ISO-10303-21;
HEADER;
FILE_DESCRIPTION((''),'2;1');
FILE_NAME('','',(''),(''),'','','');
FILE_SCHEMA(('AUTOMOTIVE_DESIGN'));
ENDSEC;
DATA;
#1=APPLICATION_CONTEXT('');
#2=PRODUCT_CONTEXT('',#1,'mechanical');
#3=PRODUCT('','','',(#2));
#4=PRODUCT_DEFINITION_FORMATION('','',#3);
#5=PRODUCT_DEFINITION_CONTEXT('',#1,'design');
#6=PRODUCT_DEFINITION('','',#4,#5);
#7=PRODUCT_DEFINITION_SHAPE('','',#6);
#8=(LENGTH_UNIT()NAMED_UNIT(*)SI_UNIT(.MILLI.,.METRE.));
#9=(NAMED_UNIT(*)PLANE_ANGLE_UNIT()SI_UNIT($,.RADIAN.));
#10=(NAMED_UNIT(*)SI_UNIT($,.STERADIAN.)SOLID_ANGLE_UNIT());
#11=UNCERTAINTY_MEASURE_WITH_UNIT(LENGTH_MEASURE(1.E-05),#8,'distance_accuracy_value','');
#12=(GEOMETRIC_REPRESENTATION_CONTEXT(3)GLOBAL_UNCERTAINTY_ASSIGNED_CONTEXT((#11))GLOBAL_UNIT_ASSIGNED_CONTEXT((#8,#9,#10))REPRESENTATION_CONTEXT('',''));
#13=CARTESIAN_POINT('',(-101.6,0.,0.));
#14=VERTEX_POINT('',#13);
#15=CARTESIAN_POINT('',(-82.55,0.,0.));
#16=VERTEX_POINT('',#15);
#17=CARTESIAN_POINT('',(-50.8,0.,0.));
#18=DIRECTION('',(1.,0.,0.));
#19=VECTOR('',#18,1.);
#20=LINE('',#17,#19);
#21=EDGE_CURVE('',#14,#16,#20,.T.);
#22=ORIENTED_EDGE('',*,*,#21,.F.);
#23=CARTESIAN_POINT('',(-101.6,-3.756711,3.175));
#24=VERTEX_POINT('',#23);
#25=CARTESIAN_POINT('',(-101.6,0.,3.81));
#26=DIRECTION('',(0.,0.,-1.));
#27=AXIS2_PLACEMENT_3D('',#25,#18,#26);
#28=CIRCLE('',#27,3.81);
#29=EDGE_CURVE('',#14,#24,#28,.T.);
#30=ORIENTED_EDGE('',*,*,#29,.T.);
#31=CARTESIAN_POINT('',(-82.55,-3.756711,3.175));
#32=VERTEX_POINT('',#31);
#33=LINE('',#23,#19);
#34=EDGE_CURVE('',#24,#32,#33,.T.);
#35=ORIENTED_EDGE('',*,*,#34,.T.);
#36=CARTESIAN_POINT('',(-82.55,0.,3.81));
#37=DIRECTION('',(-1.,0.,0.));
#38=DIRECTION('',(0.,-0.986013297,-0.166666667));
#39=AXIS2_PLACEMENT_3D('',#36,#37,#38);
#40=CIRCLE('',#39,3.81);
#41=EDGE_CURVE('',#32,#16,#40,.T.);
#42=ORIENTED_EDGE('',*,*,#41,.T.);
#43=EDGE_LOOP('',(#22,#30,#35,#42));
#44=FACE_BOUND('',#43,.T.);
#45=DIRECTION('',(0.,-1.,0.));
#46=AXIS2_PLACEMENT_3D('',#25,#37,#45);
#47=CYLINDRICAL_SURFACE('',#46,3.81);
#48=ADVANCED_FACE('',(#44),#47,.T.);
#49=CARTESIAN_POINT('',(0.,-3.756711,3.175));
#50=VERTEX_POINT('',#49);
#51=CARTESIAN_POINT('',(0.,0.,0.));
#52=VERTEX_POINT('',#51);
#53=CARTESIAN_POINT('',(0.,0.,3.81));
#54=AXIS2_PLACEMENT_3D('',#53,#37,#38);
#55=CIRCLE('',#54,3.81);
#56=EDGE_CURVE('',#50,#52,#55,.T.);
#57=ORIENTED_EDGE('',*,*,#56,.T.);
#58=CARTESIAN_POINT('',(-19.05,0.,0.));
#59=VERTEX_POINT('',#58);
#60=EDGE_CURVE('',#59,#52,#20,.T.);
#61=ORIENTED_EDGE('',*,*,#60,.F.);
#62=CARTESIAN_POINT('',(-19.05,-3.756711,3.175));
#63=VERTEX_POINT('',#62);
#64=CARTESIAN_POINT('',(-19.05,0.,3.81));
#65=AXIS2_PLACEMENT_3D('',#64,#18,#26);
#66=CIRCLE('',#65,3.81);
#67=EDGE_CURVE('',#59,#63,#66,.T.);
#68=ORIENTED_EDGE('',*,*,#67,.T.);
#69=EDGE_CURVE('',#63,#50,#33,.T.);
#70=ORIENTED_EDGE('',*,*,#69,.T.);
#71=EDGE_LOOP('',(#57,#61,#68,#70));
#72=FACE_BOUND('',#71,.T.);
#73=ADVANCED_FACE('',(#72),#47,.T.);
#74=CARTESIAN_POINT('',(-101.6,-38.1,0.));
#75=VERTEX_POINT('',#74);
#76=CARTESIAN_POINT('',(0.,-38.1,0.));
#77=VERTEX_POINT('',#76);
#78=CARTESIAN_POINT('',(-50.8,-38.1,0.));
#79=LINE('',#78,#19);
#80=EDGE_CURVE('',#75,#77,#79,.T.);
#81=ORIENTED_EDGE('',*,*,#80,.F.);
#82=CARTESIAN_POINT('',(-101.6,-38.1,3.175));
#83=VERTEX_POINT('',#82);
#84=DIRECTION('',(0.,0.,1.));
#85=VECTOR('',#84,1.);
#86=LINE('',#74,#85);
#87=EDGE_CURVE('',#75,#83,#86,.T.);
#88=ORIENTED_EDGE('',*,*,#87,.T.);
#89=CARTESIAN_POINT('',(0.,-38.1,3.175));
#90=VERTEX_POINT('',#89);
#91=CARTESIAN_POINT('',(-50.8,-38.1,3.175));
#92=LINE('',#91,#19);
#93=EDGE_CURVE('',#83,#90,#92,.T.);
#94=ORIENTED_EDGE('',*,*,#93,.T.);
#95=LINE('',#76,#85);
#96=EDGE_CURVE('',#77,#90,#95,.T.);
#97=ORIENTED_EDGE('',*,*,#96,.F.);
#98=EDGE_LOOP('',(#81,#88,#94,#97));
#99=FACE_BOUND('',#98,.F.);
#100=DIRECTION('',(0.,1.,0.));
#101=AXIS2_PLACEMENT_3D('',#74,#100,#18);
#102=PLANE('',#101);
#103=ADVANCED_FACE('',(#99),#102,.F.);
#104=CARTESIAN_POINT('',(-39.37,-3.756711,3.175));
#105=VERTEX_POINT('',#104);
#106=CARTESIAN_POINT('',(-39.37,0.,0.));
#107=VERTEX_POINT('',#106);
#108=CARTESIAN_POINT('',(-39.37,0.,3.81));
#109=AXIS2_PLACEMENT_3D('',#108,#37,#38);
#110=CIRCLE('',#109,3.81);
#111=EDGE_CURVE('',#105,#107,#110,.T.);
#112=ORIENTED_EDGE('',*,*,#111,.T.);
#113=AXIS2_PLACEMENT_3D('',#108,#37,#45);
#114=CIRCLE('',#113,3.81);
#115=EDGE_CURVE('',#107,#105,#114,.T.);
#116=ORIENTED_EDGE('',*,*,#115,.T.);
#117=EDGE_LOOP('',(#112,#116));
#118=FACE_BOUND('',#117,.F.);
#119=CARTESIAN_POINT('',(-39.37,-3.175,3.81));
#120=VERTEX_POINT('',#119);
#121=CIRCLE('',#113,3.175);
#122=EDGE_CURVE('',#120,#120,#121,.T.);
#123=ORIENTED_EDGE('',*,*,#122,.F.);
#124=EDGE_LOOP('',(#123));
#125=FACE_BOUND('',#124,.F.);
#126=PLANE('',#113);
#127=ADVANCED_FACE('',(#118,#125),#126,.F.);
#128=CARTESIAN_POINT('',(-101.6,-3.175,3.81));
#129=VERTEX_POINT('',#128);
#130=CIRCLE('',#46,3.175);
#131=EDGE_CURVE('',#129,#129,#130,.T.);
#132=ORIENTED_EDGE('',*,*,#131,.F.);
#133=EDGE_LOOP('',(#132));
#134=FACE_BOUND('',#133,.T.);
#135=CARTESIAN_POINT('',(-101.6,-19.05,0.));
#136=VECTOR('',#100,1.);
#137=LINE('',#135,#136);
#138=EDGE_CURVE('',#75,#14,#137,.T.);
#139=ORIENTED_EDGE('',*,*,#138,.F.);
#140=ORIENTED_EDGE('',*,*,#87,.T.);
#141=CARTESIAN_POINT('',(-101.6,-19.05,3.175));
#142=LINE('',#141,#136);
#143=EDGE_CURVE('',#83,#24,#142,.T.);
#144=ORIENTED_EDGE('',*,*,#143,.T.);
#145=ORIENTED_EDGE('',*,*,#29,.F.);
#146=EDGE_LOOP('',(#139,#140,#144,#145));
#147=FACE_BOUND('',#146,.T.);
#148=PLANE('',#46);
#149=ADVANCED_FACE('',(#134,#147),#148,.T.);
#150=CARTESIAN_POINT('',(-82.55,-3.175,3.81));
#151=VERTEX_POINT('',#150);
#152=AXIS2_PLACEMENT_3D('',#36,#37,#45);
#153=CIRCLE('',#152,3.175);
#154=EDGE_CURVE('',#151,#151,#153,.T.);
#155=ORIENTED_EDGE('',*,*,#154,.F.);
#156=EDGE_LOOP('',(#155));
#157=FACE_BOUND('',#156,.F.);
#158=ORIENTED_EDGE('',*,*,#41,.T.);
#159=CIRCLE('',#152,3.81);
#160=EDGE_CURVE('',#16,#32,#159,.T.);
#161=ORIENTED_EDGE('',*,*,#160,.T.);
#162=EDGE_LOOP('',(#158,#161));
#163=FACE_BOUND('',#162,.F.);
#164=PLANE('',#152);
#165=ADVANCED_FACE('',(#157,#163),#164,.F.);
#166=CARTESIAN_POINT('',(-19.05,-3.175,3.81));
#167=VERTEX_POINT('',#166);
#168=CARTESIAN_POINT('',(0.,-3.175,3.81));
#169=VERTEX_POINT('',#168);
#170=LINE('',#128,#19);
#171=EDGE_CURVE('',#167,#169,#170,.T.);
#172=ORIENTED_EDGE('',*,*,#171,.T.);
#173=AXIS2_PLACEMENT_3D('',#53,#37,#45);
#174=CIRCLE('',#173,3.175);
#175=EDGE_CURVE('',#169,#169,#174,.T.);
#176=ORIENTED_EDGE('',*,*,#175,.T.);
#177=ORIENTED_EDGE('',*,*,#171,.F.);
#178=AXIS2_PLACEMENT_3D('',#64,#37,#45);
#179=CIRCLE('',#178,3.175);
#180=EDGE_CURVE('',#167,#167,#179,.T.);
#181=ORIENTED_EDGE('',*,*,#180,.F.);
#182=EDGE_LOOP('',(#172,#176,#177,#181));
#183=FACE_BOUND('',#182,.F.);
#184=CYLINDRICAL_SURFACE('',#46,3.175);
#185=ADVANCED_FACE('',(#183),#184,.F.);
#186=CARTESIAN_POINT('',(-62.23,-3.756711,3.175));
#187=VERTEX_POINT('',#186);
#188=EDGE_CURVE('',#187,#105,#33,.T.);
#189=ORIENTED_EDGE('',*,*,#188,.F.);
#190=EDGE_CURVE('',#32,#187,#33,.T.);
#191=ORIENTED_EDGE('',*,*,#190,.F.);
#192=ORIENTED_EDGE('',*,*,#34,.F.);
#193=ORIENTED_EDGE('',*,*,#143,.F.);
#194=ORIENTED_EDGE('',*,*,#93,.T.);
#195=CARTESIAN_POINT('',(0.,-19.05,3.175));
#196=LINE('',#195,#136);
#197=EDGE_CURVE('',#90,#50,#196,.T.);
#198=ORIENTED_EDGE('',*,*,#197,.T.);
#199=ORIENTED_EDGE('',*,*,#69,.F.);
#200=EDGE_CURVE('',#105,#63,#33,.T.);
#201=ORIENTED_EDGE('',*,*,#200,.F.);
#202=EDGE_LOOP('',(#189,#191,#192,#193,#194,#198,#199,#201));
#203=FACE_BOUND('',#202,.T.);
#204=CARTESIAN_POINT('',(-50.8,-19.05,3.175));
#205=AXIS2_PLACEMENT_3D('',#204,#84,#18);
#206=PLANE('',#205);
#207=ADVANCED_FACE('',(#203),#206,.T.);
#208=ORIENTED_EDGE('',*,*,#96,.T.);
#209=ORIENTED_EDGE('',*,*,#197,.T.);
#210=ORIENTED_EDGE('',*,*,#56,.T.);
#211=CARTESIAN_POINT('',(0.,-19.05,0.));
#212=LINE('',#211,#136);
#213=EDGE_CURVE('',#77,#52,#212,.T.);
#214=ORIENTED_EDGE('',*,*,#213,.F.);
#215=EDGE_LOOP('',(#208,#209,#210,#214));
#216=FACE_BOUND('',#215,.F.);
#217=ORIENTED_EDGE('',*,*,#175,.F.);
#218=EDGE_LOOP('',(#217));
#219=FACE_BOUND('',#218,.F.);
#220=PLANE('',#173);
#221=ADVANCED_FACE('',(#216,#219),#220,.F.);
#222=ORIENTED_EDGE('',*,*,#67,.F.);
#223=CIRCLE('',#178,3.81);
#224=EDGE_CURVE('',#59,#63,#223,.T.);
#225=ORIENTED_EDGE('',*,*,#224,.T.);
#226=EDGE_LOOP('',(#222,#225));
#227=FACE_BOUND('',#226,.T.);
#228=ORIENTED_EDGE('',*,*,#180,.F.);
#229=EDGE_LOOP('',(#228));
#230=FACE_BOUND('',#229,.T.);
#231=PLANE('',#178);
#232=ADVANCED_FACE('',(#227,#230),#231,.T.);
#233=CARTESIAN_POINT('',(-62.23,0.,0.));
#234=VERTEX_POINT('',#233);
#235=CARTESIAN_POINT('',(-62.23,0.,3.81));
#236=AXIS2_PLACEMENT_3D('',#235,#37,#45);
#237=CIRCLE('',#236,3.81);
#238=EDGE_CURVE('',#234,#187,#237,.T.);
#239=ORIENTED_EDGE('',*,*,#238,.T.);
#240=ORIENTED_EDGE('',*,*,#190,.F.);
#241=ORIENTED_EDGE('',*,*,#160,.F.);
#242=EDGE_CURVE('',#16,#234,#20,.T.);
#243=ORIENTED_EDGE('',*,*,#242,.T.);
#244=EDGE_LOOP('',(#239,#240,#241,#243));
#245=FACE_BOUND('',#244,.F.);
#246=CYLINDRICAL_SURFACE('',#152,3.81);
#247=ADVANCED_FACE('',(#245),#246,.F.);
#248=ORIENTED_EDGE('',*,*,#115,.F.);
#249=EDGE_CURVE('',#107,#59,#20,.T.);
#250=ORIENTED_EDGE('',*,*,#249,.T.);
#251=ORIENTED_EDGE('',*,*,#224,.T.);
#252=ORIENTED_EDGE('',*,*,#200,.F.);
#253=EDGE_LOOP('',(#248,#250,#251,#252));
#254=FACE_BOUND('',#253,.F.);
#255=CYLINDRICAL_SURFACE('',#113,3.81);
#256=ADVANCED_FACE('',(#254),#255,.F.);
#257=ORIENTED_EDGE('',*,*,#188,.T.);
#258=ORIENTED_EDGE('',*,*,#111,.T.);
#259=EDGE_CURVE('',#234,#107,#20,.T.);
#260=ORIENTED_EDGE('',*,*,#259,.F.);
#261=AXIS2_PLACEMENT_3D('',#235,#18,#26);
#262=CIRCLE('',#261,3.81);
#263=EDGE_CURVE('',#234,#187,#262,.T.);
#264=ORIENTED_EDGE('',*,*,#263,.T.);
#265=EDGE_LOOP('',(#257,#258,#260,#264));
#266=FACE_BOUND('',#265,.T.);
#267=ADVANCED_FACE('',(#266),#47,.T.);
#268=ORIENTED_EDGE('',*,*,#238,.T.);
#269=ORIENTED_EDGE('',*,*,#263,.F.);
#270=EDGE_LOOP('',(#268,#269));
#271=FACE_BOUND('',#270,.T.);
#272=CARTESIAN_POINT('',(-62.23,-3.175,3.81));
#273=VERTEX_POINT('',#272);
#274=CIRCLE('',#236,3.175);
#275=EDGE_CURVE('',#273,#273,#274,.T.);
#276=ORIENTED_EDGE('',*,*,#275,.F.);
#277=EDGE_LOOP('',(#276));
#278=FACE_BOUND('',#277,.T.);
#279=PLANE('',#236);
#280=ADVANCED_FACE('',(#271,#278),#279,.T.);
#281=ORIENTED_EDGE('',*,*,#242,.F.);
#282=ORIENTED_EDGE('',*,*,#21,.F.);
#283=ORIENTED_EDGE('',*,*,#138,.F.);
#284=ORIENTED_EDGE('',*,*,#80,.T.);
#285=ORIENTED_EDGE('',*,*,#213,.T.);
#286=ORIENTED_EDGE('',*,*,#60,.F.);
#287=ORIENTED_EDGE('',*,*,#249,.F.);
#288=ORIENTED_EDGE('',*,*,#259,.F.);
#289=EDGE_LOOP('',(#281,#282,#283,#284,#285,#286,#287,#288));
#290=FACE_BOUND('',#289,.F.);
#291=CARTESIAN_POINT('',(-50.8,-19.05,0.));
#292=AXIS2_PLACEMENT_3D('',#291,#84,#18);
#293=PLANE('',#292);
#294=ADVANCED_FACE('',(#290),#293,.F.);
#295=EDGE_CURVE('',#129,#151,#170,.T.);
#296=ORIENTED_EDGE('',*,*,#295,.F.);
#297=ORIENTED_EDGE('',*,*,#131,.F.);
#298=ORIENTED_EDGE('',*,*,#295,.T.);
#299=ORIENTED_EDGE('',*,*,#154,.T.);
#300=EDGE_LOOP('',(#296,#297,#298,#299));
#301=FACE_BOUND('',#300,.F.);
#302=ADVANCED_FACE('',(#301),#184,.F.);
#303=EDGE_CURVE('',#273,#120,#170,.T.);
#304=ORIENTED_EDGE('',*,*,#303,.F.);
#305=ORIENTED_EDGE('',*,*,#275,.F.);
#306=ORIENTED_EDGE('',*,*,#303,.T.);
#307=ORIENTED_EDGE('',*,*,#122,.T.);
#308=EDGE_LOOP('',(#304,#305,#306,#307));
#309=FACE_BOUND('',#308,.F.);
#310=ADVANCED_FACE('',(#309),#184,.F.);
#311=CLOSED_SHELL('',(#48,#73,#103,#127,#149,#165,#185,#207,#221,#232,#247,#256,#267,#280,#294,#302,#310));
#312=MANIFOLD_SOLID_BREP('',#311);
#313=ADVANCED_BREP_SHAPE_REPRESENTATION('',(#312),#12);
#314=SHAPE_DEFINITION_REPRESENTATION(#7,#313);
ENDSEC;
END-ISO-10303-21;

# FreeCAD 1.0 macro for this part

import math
import FreeCAD as App
import Part
import Sketcher
from FreeCAD import Vector
Q = App.Units.Quantity


def add_polygon(sketch, points):
    """Adds a closed chain of lines whose ends are joined by coincident constraints."""
    first, n = sketch.GeometryCount, len(points)
    for a, b in zip(points, points[1:] + points[:1]):
        sketch.addGeometry(Part.LineSegment(App.Vector(*a, 0), App.Vector(*b, 0)), False)
    for i in range(n):
        sketch.addConstraint(Sketcher.Constraint("Coincident", first + i, 2, first + (i + 1) % n, 1))

doc = App.newDocument("Part")
body = doc.addObject("PartDesign::Body", "Body")

sketch1 = body.newObject("Sketcher::SketchObject", "Sketch")
sketch1.AttachmentSupport = (doc.getObject("XY_Plane"), [""])
sketch1.MapMode = "FlatFace"
add_polygon(sketch1, [(-102, 0), (-102, -38), (0, -38), (0, 0)])
sketch1.addConstraint(Sketcher.Constraint("Vertical", 0))
sketch1.addConstraint(Sketcher.Constraint("Horizontal", 1))
sketch1.addConstraint(Sketcher.Constraint("Vertical", 2))
sketch1.addConstraint(Sketcher.Constraint("Horizontal", 3))
sketch1.addConstraint(Sketcher.Constraint("Coincident", 2, 2, -1, 1))
sketch1.addConstraint(Sketcher.Constraint("DistanceX", 1, 1, 1, 2, Q("4 in")))
sketch1.addConstraint(Sketcher.Constraint("DistanceY", 0, 2, 0, 1, Q("1.5 in")))
pad1 = body.newObject("PartDesign::Pad", "Pad")
pad1.Profile = sketch1
pad1.Length = Q("0.125 in")

sketch2 = body.newObject("Sketcher::SketchObject", "Sketch001")
sketch2.AttachmentSupport = (doc.getObject("YZ_Plane"), [""])
sketch2.MapMode = "FlatFace"
sketch2.AttachmentOffset = App.Placement(Vector(0, 0, -4 * 25.4), App.Rotation())
sketch2.addGeometry(Part.ArcOfCircle(Part.Circle(Vector(0, 3.8, 0), Vector(0, 0, 1), 3.8), math.radians(-180), math.radians(-170.41)), False)
sketch2.addGeometry(Part.ArcOfCircle(Part.Circle(Vector(0, 3.8, 0), Vector(0, 0, 1), 3.8), math.radians(-90), math.radians(180)), False)
sketch2.addGeometry(Part.ArcOfCircle(Part.Circle(Vector(0, 3.8, 0), Vector(0, 0, 1), 3.8), math.radians(-170), math.radians(-90)), False)
sketch2.addGeometry(Part.ArcOfCircle(Part.Circle(Vector(0, 3.8, 0), Vector(0, 0, 1), 3.2), math.radians(-90), math.radians(180)), False)
sketch2.addGeometry(Part.ArcOfCircle(Part.Circle(Vector(0, 3.8, 0), Vector(0, 0, 1), 3.2), math.radians(180), math.radians(191.54)), False)
sketch2.addGeometry(Part.LineSegment(Vector(-3.1, 3.2, 0), Vector(0, 3.2, 0)), False)
sketch2.addGeometry(Part.LineSegment(Vector(0, 3.2, 0), Vector(0, 0.6, 0)), False)
sketch2.addConstraint(Sketcher.Constraint("Tangent", 0, 1, 1, 2))
sketch2.addConstraint(Sketcher.Constraint("Tangent", 1, 1, 2, 2))
sketch2.addConstraint(Sketcher.Constraint("Tangent", 2, 1, 0, 2))
sketch2.addConstraint(Sketcher.Constraint("Tangent", 3, 2, 4, 1))
sketch2.addConstraint(Sketcher.Constraint("Coincident", 4, 2, 5, 1))
sketch2.addConstraint(Sketcher.Constraint("Coincident", 5, 2, 6, 1))
sketch2.addConstraint(Sketcher.Constraint("Coincident", 6, 2, 3, 1))
sketch2.addConstraint(Sketcher.Constraint("Horizontal", 5))
sketch2.addConstraint(Sketcher.Constraint("Vertical", 6))
sketch2.addConstraint(Sketcher.Constraint("Coincident", 1, 1, -1, 1))
sketch2.addConstraint(Sketcher.Constraint("Coincident", 3, 3, 0, 3))
sketch2.addConstraint(Sketcher.Constraint("Equal", 3, 4))
sketch2.addConstraint(Sketcher.Constraint("PointOnObject", 0, 3, -2))
sketch2.addConstraint(Sketcher.Constraint("PointOnObject", 5, 2, -2))
sketch2.addConstraint(Sketcher.Constraint("Horizontal", 4, 3, 0, 1))
sketch2.addConstraint(Sketcher.Constraint("Horizontal", 0, 1, 3, 2))
sketch2.addConstraint(Sketcher.Constraint("Horizontal", 2, 1, 4, 2))
sketch2.addConstraint(Sketcher.Constraint("Radius", 0, Q("0.15 in")))
sketch2.addConstraint(Sketcher.Constraint("DistanceY", 6, 2, 6, 1, Q("0.1 in")))
sketch2.addConstraint(Sketcher.Constraint("Radius", 3, Q("0.125 in")))
pocket1 = body.newObject("PartDesign::Pocket", "Pocket")
pocket1.Profile = sketch2
pocket1.Length = Q("10 in")
pocket1.Reversed = True

sketch3 = body.newObject("Sketcher::SketchObject", "Sketch002")
sketch3.AttachmentSupport = (doc.getObject("YZ_Plane"), [""])
sketch3.MapMode = "FlatFace"
sketch3.AttachmentOffset = App.Placement(Vector(0, 0, -4 * 25.4), App.Rotation())
sketch3.addGeometry(Part.Circle(Vector(0, 3.8, 0), Vector(0, 0, 1), 3.8), False)
sketch3.addGeometry(Part.Circle(Vector(0, 3.8, 0), Vector(0, 0, 1), 3.2), False)
sketch3.addConstraint(Sketcher.Constraint("Coincident", 1, 3, 0, 3))
sketch3.addConstraint(Sketcher.Constraint("PointOnObject", 0, 3, -2))
sketch3.addConstraint(Sketcher.Constraint("Diameter", 0, Q("0.3 in")))
sketch3.addConstraint(Sketcher.Constraint("Diameter", 1, Q("0.25 in")))
sketch3.addConstraint(Sketcher.Constraint("DistanceY", -1, 1, 0, 3, Q("0.15 in")))
pad2 = body.newObject("PartDesign::Pad", "Pad001")
pad2.Profile = sketch3
pad2.Length = Q("4 in")

sketch4 = body.newObject("Sketcher::SketchObject", "Sketch003")
sketch4.AttachmentSupport = (doc.getObject("YZ_Plane"), [""])
sketch4.MapMode = "FlatFace"
sketch4.AttachmentOffset = App.Placement(Vector(0, 0, -3.25 * 25.4), App.Rotation())
sketch4.addGeometry(Part.Circle(Vector(0, 3.8, 0), Vector(0, 0, 1), 3.8), False)
sketch4.addGeometry(Part.Circle(Vector(0, 3.8, 0), Vector(0, 0, 1), 3.2), False)
sketch4.addConstraint(Sketcher.Constraint("Coincident", 1, 3, 0, 3))
sketch4.addConstraint(Sketcher.Constraint("PointOnObject", 0, 3, -2))
sketch4.addConstraint(Sketcher.Constraint("Diameter", 0, Q("0.3 in")))
sketch4.addConstraint(Sketcher.Constraint("Diameter", 1, Q("0.25 in")))
sketch4.addConstraint(Sketcher.Constraint("DistanceY", -1, 1, 0, 3, Q("0.15 in")))
pocket2 = body.newObject("PartDesign::Pocket", "Pocket001")
pocket2.Profile = sketch4
pocket2.Length = Q("0.8 in")
pocket2.Reversed = True

sketch5 = body.newObject("Sketcher::SketchObject", "Sketch004")
sketch5.AttachmentSupport = (doc.getObject("YZ_Plane"), [""])
sketch5.MapMode = "FlatFace"
sketch5.AttachmentOffset = App.Placement(Vector(0, 0, -1.55 * 25.4), App.Rotation())
sketch5.addGeometry(Part.Circle(Vector(0, 3.8, 0), Vector(0, 0, 1), 3.8), False)
sketch5.addGeometry(Part.Circle(Vector(0, 3.8, 0), Vector(0, 0, 1), 3.2), False)
sketch5.addConstraint(Sketcher.Constraint("Coincident", 1, 3, 0, 3))
sketch5.addConstraint(Sketcher.Constraint("PointOnObject", 0, 3, -2))
sketch5.addConstraint(Sketcher.Constraint("Diameter", 0, Q("0.3 in")))
sketch5.addConstraint(Sketcher.Constraint("Diameter", 1, Q("0.25 in")))
sketch5.addConstraint(Sketcher.Constraint("DistanceY", -1, 1, 0, 3, Q("0.15 in")))
pocket3 = body.newObject("PartDesign::Pocket", "Pocket002")
pocket3.Profile = sketch5
pocket3.Length = Q("0.8 in")
pocket3.Reversed = True

doc.recompute()
